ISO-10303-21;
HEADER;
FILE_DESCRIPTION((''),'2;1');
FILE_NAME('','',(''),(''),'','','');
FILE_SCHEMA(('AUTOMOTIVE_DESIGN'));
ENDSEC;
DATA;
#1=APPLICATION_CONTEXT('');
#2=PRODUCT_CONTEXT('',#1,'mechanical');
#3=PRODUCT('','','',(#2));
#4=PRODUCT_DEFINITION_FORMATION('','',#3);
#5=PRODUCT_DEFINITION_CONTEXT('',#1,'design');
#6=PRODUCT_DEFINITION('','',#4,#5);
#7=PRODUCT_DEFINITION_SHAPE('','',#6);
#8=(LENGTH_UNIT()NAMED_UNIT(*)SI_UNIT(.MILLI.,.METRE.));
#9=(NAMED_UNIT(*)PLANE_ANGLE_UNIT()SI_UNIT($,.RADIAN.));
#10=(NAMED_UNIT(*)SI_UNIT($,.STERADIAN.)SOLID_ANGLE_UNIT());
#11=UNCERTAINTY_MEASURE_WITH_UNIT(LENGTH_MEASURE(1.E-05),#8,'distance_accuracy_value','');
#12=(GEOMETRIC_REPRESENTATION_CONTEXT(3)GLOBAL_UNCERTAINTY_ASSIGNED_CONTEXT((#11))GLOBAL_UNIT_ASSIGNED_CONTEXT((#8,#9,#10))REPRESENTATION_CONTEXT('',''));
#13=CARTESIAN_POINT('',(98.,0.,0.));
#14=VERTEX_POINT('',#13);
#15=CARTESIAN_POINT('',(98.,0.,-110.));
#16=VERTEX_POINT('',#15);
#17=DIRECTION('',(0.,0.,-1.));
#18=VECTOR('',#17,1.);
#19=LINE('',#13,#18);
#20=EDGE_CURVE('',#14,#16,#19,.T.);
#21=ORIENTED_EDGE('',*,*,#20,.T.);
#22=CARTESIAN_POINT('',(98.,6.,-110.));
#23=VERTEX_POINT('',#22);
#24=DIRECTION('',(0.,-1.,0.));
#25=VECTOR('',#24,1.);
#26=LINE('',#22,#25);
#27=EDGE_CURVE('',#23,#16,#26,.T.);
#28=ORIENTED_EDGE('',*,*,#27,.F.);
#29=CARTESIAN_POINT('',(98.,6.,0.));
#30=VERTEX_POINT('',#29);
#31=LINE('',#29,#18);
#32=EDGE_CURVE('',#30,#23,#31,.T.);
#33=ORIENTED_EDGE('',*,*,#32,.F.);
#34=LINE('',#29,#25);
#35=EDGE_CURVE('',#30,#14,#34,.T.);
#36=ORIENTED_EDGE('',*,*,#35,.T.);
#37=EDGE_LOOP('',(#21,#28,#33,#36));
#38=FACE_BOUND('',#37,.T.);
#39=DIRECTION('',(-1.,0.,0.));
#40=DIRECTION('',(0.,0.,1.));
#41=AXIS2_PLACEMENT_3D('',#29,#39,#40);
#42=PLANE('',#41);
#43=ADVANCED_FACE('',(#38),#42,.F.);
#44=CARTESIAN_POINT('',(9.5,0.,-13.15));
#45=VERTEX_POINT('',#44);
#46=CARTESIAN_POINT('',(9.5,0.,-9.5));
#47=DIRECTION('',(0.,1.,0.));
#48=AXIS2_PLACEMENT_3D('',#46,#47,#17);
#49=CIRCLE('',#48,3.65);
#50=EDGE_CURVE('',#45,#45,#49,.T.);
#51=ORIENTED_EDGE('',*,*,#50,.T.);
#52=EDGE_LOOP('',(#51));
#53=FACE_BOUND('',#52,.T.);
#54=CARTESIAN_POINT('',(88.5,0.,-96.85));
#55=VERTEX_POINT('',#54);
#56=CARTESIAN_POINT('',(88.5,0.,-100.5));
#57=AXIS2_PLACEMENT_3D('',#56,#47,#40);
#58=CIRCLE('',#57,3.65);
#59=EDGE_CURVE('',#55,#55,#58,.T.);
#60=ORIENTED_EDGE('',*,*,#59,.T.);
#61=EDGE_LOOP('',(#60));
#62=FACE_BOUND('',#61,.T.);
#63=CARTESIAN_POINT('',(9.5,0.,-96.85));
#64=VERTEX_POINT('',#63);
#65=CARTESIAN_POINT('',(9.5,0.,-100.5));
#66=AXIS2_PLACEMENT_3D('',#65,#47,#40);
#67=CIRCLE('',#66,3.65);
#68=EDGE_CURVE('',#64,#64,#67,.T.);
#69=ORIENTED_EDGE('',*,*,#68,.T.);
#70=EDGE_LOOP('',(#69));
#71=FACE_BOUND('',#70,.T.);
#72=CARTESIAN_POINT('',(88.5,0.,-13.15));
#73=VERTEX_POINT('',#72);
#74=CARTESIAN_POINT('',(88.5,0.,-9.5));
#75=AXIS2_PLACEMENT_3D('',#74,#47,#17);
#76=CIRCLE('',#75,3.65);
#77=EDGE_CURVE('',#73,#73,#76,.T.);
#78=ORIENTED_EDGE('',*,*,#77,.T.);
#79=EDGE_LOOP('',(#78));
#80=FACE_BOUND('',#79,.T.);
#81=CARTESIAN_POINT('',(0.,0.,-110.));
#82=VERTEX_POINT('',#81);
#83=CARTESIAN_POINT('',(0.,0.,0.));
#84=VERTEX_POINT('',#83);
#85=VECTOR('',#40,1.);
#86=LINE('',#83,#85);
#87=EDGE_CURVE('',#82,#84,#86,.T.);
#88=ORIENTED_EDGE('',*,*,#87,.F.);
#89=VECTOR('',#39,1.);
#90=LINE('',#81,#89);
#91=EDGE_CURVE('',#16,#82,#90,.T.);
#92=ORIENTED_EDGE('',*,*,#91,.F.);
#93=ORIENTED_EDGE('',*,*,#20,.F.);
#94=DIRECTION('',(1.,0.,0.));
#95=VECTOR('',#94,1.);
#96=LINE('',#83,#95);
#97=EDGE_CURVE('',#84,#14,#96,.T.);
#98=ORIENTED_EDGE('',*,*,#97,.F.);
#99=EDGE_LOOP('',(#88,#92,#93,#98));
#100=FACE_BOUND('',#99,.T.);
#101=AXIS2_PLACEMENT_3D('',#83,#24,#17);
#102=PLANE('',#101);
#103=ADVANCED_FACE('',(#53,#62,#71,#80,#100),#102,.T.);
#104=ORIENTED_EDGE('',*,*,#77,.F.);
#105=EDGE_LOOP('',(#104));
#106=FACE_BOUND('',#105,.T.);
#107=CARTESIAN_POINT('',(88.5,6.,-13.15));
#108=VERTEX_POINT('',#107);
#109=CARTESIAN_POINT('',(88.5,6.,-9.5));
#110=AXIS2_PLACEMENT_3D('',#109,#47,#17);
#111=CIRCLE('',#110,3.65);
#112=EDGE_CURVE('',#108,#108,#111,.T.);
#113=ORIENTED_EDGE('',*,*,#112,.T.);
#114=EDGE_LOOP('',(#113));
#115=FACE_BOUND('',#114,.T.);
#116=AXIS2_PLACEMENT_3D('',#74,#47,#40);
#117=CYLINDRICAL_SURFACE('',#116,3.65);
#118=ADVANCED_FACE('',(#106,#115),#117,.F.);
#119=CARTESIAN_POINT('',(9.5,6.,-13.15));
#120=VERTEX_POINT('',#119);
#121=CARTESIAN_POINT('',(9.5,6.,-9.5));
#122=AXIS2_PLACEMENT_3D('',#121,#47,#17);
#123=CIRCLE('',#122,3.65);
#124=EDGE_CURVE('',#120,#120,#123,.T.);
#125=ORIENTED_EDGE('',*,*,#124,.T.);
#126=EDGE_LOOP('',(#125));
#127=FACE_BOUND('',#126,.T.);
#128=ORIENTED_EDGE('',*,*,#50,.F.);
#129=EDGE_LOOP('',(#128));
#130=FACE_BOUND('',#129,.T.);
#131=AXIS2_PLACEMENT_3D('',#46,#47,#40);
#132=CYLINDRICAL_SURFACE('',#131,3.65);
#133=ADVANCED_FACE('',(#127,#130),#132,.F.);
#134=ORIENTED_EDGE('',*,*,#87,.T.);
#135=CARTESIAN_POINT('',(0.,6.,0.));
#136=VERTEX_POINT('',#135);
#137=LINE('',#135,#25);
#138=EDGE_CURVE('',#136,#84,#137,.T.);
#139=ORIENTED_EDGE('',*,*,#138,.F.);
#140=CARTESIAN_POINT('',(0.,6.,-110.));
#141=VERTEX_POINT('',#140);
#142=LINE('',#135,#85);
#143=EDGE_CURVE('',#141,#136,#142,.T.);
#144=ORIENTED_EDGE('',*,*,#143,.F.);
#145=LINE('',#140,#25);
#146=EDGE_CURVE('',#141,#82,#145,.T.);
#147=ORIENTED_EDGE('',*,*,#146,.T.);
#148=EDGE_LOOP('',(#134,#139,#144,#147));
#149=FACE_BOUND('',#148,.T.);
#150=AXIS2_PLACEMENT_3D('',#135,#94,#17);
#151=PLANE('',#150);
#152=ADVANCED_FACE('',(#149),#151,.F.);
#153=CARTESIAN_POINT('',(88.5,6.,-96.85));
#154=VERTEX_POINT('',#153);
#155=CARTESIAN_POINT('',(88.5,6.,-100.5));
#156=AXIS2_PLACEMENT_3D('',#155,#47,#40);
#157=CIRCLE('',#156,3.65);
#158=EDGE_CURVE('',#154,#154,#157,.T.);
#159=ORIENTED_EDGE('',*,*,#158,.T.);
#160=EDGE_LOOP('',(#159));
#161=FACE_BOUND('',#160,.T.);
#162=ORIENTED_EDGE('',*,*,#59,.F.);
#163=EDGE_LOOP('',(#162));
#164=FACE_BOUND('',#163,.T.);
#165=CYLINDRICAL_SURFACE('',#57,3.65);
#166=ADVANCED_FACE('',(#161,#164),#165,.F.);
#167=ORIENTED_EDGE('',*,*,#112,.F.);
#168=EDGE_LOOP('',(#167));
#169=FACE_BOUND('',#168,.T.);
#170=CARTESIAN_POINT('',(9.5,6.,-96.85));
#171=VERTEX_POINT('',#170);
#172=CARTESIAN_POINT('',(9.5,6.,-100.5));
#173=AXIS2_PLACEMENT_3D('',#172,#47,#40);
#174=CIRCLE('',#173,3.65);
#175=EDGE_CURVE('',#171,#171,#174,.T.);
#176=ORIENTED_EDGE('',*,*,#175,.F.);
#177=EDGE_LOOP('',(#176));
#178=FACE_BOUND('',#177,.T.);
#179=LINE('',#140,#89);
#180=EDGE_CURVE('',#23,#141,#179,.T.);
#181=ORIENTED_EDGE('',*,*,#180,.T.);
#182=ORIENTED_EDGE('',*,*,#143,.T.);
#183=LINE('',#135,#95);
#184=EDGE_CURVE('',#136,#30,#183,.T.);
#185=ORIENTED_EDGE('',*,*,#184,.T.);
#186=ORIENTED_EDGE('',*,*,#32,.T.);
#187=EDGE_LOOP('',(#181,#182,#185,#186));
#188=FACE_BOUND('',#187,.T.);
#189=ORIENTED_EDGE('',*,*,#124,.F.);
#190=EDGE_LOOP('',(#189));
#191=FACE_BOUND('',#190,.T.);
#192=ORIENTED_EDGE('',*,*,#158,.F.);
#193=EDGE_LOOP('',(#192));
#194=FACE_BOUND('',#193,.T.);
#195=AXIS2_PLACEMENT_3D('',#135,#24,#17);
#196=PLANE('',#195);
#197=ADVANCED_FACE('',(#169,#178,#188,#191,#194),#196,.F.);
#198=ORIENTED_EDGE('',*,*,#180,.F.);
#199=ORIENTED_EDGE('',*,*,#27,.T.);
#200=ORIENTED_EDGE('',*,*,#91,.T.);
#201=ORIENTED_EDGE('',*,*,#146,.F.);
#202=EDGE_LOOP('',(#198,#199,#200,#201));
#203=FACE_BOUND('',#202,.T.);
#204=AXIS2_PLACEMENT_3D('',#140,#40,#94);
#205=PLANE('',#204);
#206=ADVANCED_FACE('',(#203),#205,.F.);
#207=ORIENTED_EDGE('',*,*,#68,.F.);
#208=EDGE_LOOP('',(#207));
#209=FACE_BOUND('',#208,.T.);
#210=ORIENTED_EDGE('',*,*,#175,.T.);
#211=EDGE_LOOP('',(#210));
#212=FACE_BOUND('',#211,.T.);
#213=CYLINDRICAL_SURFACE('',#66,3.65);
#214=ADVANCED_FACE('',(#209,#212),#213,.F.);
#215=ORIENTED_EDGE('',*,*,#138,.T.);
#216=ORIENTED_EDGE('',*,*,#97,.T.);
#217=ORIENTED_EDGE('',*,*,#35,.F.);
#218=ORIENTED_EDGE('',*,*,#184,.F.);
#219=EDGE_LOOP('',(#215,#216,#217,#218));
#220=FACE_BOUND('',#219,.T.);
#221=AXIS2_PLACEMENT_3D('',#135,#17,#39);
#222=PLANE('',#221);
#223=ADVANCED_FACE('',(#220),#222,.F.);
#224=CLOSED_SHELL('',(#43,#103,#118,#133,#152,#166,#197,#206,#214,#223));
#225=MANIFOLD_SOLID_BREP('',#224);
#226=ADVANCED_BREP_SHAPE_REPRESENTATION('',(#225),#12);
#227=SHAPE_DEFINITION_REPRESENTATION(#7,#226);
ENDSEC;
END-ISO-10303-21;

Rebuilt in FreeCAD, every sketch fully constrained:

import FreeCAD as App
import Part
import Sketcher
from FreeCAD import Vector
Q = App.Units.Quantity

doc = App.newDocument("Part")
body = doc.addObject("PartDesign::Body", "Body")

sketch1 = doc.addObject("Sketcher::SketchObject", "Sketch")
body.addObject(sketch1)
sketch1.AttachmentSupport = (doc.XZ_Plane, [""])
sketch1.MapMode = "FlatFace"
sketch1.addGeometry([
    Part.LineSegment(Vector(0, -110, 0), Vector(0, 0, 0)),
    Part.LineSegment(Vector(0, 0, 0), Vector(98, 0, 0)),
    Part.LineSegment(Vector(98, 0, 0), Vector(98, -110, 0)),
    Part.LineSegment(Vector(98, -110, 0), Vector(0, -110, 0)),
], False)
sketch1.addConstraint([
    Sketcher.Constraint("Coincident", 0, 2, 1, 1),
    Sketcher.Constraint("Coincident", 1, 2, 2, 1),
    Sketcher.Constraint("Coincident", 2, 2, 3, 1),
    Sketcher.Constraint("Coincident", 3, 2, 0, 1),
    Sketcher.Constraint("Vertical", 0),
    Sketcher.Constraint("Horizontal", 1),
    Sketcher.Constraint("Vertical", 2),
    Sketcher.Constraint("Horizontal", 3),
    Sketcher.Constraint("Coincident", 0, 2, -1, 1),
    Sketcher.Constraint("DistanceX", 1, 1, 1, 2, Q("98 mm")),
    Sketcher.Constraint("DistanceY", 0, 1, 0, 2, Q("110 mm")),
])
pad1 = doc.addObject("PartDesign::Pad", "Pad")
body.addObject(pad1)
pad1.Profile = sketch1
pad1.Length = 6
pad1.Reversed = True

sketch2 = doc.addObject("Sketcher::SketchObject", "Sketch001")
body.addObject(sketch2)
sketch2.AttachmentSupport = (doc.XZ_Plane, [""])
sketch2.MapMode = "FlatFace"
sketch2.AttachmentOffset = App.Placement(Vector(0, 0, -6), App.Rotation())
sketch2.addGeometry([
    Part.Circle(Vector(9.5, -100.5, 0), Vector(0, 0, 1), 3.6),
    Part.Circle(Vector(88.5, -100.5, 0), Vector(0, 0, 1), 3.6),
    Part.Circle(Vector(88.5, -9.5, 0), Vector(0, 0, 1), 3.6),
    Part.Circle(Vector(9.5, -9.5, 0), Vector(0, 0, 1), 3.6),
], False)
sketch2.addConstraint([
    Sketcher.Constraint("Equal", 0, 1),
    Sketcher.Constraint("Equal", 1, 2),
    Sketcher.Constraint("Equal", 2, 3),
    Sketcher.Constraint("Horizontal", 0, 3, 1, 3),
    Sketcher.Constraint("Horizontal", 2, 3, 3, 3),
    Sketcher.Constraint("Vertical", 1, 3, 2, 3),
    Sketcher.Constraint("Vertical", 0, 3, 3, 3),
    Sketcher.Constraint("Diameter", 0, Q("7.3 mm")),
    Sketcher.Constraint("DistanceX", 0, 3, 1, 3, Q("79 mm")),
    Sketcher.Constraint("DistanceY", 1, 3, 2, 3, Q("91 mm")),
    Sketcher.Constraint("DistanceX", -1, 1, 0, 3, Q("9.5 mm")),
    Sketcher.Constraint("DistanceY", 0, 3, -1, 1, Q("100.5 mm")),
])
pocket1 = doc.addObject("PartDesign::Pocket", "Pocket")
body.addObject(pocket1)
pocket1.Profile = sketch2
pocket1.Type = "ThroughAll"
pocket1.Reversed = True

doc.recompute()
